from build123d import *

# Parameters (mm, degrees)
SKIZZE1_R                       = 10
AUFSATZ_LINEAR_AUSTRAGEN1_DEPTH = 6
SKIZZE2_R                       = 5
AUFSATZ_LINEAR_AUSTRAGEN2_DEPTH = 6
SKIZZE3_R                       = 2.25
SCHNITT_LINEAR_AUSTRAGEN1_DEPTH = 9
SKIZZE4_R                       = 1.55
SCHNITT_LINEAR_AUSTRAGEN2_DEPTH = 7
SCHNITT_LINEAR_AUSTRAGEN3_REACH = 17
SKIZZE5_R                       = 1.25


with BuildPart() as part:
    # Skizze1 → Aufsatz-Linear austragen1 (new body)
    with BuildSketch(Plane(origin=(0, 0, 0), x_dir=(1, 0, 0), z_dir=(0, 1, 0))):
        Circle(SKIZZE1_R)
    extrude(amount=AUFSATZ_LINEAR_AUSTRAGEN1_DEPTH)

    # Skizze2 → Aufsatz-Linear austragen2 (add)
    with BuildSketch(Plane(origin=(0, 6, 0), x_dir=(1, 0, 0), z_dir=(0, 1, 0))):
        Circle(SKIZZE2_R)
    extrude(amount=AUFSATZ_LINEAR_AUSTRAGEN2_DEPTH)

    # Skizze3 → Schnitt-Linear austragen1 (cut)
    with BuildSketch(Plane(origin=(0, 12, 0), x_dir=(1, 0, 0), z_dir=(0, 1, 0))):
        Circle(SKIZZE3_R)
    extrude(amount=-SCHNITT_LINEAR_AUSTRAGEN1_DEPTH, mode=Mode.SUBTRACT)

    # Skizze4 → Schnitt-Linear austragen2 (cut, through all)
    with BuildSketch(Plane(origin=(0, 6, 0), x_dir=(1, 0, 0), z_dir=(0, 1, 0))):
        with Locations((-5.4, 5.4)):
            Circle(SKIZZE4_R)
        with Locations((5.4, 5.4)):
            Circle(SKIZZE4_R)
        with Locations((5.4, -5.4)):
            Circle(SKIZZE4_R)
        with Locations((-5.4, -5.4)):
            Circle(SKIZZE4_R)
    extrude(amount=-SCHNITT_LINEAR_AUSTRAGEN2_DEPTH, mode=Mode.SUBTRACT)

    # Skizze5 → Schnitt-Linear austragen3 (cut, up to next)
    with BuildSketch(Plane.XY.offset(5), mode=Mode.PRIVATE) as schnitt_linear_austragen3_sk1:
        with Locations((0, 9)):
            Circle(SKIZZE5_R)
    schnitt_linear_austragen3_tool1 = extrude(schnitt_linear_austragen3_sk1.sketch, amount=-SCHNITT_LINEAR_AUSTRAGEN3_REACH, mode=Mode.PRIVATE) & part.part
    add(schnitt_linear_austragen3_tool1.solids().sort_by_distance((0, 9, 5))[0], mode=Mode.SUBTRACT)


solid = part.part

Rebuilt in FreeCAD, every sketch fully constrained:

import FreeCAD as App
import Part
import Sketcher
from FreeCAD import Vector

doc = App.newDocument("Part")
body = doc.addObject("PartDesign::Body", "Body")

sketch1 = body.newObject("Sketcher::SketchObject", "Sketch")
sketch1.AttachmentSupport = (doc.getObject("XZ_Plane"), [""])
sketch1.MapMode = "FlatFace"
sketch1.addGeometry(Part.Circle(Vector(0, 0, 0), Vector(0, 0, 1), 10), False)
sketch1.addConstraint(Sketcher.Constraint("Coincident", 0, 3, -1, 1))
sketch1.addConstraint(Sketcher.Constraint("Diameter", 0, 20.0))
pad1 = body.newObject("PartDesign::Pad", "Pad")
pad1.Profile = sketch1
pad1.Length = 6
pad1.Reversed = True

sketch2 = body.newObject("Sketcher::SketchObject", "Sketch001")
sketch2.AttachmentSupport = (doc.getObject("XZ_Plane"), [""])
sketch2.MapMode = "FlatFace"
sketch2.AttachmentOffset = App.Placement(Vector(0, 0, -6), App.Rotation())
sketch2.addGeometry(Part.Circle(Vector(0, 0, 0), Vector(0, 0, 1), 5), False)
sketch2.addConstraint(Sketcher.Constraint("Coincident", 0, 3, -1, 1))
sketch2.addConstraint(Sketcher.Constraint("Diameter", 0, 10.0))
pad2 = body.newObject("PartDesign::Pad", "Pad001")
pad2.Profile = sketch2
pad2.Length = 6
pad2.Reversed = True

sketch3 = body.newObject("Sketcher::SketchObject", "Sketch002")
sketch3.AttachmentSupport = (doc.getObject("XZ_Plane"), [""])
sketch3.MapMode = "FlatFace"
sketch3.AttachmentOffset = App.Placement(Vector(0, 0, -12), App.Rotation())
sketch3.addGeometry(Part.Circle(Vector(0, 0, 0), Vector(0, 0, 1), 2.2), False)
sketch3.addConstraint(Sketcher.Constraint("Coincident", 0, 3, -1, 1))
sketch3.addConstraint(Sketcher.Constraint("Diameter", 0, 4.5))
pocket1 = body.newObject("PartDesign::Pocket", "Pocket")
pocket1.Profile = sketch3
pocket1.Length = 9
pocket1.Reversed = True

sketch4 = body.newObject("Sketcher::SketchObject", "Sketch003")
sketch4.AttachmentSupport = (doc.getObject("XZ_Plane"), [""])
sketch4.MapMode = "FlatFace"
sketch4.AttachmentOffset = App.Placement(Vector(0, 0, -6), App.Rotation())
sketch4.addGeometry(Part.Circle(Vector(-5.4, -5.4, 0), Vector(0, 0, 1), 1.6), False)
sketch4.addGeometry(Part.Circle(Vector(5.4, -5.4, 0), Vector(0, 0, 1), 1.6), False)
sketch4.addGeometry(Part.Circle(Vector(5.4, 5.4, 0), Vector(0, 0, 1), 1.6), False)
sketch4.addGeometry(Part.Circle(Vector(-5.4, 5.4, 0), Vector(0, 0, 1), 1.6), False)
sketch4.addConstraint(Sketcher.Constraint("Equal", 0, 1))
sketch4.addConstraint(Sketcher.Constraint("Equal", 1, 2))
sketch4.addConstraint(Sketcher.Constraint("Equal", 2, 3))
sketch4.addConstraint(Sketcher.Constraint("Symmetric", 0, 3, 2, 3, -1, 1))
sketch4.addConstraint(Sketcher.Constraint("Symmetric", 1, 3, 3, 3, -1, 1))
sketch4.addConstraint(Sketcher.Constraint("Symmetric", 0, 3, 1, 3, -2))
sketch4.addConstraint(Sketcher.Constraint("Diameter", 0, 3.1))
sketch4.addConstraint(Sketcher.Constraint("DistanceX", 0, 3, -1, 1, 5.4))
sketch4.addConstraint(Sketcher.Constraint("DistanceY", 0, 3, -1, 1, 5.4))
pocket2 = body.newObject("PartDesign::Pocket", "Pocket001")
pocket2.Profile = sketch4
pocket2.Type = "ThroughAll"
pocket2.Reversed = True

sketch5 = body.newObject("Sketcher::SketchObject", "Sketch004")
sketch5.AttachmentSupport = (doc.getObject("XY_Plane"), [""])
sketch5.MapMode = "FlatFace"
sketch5.AttachmentOffset = App.Placement(Vector(0, 0, 5), App.Rotation())
sketch5.addGeometry(Part.Circle(Vector(0, 9, 0), Vector(0, 0, 1), 1.2), False)
sketch5.addConstraint(Sketcher.Constraint("PointOnObject", 0, 3, -2))
sketch5.addConstraint(Sketcher.Constraint("Diameter", 0, 2.5))
sketch5.addConstraint(Sketcher.Constraint("DistanceY", -1, 1, 0, 3, 9.0))
pocket3 = body.newObject("PartDesign::Pocket", "Pocket002")
pocket3.Profile = sketch5
pocket3.Type = "UpToFirst"

doc.recompute()
